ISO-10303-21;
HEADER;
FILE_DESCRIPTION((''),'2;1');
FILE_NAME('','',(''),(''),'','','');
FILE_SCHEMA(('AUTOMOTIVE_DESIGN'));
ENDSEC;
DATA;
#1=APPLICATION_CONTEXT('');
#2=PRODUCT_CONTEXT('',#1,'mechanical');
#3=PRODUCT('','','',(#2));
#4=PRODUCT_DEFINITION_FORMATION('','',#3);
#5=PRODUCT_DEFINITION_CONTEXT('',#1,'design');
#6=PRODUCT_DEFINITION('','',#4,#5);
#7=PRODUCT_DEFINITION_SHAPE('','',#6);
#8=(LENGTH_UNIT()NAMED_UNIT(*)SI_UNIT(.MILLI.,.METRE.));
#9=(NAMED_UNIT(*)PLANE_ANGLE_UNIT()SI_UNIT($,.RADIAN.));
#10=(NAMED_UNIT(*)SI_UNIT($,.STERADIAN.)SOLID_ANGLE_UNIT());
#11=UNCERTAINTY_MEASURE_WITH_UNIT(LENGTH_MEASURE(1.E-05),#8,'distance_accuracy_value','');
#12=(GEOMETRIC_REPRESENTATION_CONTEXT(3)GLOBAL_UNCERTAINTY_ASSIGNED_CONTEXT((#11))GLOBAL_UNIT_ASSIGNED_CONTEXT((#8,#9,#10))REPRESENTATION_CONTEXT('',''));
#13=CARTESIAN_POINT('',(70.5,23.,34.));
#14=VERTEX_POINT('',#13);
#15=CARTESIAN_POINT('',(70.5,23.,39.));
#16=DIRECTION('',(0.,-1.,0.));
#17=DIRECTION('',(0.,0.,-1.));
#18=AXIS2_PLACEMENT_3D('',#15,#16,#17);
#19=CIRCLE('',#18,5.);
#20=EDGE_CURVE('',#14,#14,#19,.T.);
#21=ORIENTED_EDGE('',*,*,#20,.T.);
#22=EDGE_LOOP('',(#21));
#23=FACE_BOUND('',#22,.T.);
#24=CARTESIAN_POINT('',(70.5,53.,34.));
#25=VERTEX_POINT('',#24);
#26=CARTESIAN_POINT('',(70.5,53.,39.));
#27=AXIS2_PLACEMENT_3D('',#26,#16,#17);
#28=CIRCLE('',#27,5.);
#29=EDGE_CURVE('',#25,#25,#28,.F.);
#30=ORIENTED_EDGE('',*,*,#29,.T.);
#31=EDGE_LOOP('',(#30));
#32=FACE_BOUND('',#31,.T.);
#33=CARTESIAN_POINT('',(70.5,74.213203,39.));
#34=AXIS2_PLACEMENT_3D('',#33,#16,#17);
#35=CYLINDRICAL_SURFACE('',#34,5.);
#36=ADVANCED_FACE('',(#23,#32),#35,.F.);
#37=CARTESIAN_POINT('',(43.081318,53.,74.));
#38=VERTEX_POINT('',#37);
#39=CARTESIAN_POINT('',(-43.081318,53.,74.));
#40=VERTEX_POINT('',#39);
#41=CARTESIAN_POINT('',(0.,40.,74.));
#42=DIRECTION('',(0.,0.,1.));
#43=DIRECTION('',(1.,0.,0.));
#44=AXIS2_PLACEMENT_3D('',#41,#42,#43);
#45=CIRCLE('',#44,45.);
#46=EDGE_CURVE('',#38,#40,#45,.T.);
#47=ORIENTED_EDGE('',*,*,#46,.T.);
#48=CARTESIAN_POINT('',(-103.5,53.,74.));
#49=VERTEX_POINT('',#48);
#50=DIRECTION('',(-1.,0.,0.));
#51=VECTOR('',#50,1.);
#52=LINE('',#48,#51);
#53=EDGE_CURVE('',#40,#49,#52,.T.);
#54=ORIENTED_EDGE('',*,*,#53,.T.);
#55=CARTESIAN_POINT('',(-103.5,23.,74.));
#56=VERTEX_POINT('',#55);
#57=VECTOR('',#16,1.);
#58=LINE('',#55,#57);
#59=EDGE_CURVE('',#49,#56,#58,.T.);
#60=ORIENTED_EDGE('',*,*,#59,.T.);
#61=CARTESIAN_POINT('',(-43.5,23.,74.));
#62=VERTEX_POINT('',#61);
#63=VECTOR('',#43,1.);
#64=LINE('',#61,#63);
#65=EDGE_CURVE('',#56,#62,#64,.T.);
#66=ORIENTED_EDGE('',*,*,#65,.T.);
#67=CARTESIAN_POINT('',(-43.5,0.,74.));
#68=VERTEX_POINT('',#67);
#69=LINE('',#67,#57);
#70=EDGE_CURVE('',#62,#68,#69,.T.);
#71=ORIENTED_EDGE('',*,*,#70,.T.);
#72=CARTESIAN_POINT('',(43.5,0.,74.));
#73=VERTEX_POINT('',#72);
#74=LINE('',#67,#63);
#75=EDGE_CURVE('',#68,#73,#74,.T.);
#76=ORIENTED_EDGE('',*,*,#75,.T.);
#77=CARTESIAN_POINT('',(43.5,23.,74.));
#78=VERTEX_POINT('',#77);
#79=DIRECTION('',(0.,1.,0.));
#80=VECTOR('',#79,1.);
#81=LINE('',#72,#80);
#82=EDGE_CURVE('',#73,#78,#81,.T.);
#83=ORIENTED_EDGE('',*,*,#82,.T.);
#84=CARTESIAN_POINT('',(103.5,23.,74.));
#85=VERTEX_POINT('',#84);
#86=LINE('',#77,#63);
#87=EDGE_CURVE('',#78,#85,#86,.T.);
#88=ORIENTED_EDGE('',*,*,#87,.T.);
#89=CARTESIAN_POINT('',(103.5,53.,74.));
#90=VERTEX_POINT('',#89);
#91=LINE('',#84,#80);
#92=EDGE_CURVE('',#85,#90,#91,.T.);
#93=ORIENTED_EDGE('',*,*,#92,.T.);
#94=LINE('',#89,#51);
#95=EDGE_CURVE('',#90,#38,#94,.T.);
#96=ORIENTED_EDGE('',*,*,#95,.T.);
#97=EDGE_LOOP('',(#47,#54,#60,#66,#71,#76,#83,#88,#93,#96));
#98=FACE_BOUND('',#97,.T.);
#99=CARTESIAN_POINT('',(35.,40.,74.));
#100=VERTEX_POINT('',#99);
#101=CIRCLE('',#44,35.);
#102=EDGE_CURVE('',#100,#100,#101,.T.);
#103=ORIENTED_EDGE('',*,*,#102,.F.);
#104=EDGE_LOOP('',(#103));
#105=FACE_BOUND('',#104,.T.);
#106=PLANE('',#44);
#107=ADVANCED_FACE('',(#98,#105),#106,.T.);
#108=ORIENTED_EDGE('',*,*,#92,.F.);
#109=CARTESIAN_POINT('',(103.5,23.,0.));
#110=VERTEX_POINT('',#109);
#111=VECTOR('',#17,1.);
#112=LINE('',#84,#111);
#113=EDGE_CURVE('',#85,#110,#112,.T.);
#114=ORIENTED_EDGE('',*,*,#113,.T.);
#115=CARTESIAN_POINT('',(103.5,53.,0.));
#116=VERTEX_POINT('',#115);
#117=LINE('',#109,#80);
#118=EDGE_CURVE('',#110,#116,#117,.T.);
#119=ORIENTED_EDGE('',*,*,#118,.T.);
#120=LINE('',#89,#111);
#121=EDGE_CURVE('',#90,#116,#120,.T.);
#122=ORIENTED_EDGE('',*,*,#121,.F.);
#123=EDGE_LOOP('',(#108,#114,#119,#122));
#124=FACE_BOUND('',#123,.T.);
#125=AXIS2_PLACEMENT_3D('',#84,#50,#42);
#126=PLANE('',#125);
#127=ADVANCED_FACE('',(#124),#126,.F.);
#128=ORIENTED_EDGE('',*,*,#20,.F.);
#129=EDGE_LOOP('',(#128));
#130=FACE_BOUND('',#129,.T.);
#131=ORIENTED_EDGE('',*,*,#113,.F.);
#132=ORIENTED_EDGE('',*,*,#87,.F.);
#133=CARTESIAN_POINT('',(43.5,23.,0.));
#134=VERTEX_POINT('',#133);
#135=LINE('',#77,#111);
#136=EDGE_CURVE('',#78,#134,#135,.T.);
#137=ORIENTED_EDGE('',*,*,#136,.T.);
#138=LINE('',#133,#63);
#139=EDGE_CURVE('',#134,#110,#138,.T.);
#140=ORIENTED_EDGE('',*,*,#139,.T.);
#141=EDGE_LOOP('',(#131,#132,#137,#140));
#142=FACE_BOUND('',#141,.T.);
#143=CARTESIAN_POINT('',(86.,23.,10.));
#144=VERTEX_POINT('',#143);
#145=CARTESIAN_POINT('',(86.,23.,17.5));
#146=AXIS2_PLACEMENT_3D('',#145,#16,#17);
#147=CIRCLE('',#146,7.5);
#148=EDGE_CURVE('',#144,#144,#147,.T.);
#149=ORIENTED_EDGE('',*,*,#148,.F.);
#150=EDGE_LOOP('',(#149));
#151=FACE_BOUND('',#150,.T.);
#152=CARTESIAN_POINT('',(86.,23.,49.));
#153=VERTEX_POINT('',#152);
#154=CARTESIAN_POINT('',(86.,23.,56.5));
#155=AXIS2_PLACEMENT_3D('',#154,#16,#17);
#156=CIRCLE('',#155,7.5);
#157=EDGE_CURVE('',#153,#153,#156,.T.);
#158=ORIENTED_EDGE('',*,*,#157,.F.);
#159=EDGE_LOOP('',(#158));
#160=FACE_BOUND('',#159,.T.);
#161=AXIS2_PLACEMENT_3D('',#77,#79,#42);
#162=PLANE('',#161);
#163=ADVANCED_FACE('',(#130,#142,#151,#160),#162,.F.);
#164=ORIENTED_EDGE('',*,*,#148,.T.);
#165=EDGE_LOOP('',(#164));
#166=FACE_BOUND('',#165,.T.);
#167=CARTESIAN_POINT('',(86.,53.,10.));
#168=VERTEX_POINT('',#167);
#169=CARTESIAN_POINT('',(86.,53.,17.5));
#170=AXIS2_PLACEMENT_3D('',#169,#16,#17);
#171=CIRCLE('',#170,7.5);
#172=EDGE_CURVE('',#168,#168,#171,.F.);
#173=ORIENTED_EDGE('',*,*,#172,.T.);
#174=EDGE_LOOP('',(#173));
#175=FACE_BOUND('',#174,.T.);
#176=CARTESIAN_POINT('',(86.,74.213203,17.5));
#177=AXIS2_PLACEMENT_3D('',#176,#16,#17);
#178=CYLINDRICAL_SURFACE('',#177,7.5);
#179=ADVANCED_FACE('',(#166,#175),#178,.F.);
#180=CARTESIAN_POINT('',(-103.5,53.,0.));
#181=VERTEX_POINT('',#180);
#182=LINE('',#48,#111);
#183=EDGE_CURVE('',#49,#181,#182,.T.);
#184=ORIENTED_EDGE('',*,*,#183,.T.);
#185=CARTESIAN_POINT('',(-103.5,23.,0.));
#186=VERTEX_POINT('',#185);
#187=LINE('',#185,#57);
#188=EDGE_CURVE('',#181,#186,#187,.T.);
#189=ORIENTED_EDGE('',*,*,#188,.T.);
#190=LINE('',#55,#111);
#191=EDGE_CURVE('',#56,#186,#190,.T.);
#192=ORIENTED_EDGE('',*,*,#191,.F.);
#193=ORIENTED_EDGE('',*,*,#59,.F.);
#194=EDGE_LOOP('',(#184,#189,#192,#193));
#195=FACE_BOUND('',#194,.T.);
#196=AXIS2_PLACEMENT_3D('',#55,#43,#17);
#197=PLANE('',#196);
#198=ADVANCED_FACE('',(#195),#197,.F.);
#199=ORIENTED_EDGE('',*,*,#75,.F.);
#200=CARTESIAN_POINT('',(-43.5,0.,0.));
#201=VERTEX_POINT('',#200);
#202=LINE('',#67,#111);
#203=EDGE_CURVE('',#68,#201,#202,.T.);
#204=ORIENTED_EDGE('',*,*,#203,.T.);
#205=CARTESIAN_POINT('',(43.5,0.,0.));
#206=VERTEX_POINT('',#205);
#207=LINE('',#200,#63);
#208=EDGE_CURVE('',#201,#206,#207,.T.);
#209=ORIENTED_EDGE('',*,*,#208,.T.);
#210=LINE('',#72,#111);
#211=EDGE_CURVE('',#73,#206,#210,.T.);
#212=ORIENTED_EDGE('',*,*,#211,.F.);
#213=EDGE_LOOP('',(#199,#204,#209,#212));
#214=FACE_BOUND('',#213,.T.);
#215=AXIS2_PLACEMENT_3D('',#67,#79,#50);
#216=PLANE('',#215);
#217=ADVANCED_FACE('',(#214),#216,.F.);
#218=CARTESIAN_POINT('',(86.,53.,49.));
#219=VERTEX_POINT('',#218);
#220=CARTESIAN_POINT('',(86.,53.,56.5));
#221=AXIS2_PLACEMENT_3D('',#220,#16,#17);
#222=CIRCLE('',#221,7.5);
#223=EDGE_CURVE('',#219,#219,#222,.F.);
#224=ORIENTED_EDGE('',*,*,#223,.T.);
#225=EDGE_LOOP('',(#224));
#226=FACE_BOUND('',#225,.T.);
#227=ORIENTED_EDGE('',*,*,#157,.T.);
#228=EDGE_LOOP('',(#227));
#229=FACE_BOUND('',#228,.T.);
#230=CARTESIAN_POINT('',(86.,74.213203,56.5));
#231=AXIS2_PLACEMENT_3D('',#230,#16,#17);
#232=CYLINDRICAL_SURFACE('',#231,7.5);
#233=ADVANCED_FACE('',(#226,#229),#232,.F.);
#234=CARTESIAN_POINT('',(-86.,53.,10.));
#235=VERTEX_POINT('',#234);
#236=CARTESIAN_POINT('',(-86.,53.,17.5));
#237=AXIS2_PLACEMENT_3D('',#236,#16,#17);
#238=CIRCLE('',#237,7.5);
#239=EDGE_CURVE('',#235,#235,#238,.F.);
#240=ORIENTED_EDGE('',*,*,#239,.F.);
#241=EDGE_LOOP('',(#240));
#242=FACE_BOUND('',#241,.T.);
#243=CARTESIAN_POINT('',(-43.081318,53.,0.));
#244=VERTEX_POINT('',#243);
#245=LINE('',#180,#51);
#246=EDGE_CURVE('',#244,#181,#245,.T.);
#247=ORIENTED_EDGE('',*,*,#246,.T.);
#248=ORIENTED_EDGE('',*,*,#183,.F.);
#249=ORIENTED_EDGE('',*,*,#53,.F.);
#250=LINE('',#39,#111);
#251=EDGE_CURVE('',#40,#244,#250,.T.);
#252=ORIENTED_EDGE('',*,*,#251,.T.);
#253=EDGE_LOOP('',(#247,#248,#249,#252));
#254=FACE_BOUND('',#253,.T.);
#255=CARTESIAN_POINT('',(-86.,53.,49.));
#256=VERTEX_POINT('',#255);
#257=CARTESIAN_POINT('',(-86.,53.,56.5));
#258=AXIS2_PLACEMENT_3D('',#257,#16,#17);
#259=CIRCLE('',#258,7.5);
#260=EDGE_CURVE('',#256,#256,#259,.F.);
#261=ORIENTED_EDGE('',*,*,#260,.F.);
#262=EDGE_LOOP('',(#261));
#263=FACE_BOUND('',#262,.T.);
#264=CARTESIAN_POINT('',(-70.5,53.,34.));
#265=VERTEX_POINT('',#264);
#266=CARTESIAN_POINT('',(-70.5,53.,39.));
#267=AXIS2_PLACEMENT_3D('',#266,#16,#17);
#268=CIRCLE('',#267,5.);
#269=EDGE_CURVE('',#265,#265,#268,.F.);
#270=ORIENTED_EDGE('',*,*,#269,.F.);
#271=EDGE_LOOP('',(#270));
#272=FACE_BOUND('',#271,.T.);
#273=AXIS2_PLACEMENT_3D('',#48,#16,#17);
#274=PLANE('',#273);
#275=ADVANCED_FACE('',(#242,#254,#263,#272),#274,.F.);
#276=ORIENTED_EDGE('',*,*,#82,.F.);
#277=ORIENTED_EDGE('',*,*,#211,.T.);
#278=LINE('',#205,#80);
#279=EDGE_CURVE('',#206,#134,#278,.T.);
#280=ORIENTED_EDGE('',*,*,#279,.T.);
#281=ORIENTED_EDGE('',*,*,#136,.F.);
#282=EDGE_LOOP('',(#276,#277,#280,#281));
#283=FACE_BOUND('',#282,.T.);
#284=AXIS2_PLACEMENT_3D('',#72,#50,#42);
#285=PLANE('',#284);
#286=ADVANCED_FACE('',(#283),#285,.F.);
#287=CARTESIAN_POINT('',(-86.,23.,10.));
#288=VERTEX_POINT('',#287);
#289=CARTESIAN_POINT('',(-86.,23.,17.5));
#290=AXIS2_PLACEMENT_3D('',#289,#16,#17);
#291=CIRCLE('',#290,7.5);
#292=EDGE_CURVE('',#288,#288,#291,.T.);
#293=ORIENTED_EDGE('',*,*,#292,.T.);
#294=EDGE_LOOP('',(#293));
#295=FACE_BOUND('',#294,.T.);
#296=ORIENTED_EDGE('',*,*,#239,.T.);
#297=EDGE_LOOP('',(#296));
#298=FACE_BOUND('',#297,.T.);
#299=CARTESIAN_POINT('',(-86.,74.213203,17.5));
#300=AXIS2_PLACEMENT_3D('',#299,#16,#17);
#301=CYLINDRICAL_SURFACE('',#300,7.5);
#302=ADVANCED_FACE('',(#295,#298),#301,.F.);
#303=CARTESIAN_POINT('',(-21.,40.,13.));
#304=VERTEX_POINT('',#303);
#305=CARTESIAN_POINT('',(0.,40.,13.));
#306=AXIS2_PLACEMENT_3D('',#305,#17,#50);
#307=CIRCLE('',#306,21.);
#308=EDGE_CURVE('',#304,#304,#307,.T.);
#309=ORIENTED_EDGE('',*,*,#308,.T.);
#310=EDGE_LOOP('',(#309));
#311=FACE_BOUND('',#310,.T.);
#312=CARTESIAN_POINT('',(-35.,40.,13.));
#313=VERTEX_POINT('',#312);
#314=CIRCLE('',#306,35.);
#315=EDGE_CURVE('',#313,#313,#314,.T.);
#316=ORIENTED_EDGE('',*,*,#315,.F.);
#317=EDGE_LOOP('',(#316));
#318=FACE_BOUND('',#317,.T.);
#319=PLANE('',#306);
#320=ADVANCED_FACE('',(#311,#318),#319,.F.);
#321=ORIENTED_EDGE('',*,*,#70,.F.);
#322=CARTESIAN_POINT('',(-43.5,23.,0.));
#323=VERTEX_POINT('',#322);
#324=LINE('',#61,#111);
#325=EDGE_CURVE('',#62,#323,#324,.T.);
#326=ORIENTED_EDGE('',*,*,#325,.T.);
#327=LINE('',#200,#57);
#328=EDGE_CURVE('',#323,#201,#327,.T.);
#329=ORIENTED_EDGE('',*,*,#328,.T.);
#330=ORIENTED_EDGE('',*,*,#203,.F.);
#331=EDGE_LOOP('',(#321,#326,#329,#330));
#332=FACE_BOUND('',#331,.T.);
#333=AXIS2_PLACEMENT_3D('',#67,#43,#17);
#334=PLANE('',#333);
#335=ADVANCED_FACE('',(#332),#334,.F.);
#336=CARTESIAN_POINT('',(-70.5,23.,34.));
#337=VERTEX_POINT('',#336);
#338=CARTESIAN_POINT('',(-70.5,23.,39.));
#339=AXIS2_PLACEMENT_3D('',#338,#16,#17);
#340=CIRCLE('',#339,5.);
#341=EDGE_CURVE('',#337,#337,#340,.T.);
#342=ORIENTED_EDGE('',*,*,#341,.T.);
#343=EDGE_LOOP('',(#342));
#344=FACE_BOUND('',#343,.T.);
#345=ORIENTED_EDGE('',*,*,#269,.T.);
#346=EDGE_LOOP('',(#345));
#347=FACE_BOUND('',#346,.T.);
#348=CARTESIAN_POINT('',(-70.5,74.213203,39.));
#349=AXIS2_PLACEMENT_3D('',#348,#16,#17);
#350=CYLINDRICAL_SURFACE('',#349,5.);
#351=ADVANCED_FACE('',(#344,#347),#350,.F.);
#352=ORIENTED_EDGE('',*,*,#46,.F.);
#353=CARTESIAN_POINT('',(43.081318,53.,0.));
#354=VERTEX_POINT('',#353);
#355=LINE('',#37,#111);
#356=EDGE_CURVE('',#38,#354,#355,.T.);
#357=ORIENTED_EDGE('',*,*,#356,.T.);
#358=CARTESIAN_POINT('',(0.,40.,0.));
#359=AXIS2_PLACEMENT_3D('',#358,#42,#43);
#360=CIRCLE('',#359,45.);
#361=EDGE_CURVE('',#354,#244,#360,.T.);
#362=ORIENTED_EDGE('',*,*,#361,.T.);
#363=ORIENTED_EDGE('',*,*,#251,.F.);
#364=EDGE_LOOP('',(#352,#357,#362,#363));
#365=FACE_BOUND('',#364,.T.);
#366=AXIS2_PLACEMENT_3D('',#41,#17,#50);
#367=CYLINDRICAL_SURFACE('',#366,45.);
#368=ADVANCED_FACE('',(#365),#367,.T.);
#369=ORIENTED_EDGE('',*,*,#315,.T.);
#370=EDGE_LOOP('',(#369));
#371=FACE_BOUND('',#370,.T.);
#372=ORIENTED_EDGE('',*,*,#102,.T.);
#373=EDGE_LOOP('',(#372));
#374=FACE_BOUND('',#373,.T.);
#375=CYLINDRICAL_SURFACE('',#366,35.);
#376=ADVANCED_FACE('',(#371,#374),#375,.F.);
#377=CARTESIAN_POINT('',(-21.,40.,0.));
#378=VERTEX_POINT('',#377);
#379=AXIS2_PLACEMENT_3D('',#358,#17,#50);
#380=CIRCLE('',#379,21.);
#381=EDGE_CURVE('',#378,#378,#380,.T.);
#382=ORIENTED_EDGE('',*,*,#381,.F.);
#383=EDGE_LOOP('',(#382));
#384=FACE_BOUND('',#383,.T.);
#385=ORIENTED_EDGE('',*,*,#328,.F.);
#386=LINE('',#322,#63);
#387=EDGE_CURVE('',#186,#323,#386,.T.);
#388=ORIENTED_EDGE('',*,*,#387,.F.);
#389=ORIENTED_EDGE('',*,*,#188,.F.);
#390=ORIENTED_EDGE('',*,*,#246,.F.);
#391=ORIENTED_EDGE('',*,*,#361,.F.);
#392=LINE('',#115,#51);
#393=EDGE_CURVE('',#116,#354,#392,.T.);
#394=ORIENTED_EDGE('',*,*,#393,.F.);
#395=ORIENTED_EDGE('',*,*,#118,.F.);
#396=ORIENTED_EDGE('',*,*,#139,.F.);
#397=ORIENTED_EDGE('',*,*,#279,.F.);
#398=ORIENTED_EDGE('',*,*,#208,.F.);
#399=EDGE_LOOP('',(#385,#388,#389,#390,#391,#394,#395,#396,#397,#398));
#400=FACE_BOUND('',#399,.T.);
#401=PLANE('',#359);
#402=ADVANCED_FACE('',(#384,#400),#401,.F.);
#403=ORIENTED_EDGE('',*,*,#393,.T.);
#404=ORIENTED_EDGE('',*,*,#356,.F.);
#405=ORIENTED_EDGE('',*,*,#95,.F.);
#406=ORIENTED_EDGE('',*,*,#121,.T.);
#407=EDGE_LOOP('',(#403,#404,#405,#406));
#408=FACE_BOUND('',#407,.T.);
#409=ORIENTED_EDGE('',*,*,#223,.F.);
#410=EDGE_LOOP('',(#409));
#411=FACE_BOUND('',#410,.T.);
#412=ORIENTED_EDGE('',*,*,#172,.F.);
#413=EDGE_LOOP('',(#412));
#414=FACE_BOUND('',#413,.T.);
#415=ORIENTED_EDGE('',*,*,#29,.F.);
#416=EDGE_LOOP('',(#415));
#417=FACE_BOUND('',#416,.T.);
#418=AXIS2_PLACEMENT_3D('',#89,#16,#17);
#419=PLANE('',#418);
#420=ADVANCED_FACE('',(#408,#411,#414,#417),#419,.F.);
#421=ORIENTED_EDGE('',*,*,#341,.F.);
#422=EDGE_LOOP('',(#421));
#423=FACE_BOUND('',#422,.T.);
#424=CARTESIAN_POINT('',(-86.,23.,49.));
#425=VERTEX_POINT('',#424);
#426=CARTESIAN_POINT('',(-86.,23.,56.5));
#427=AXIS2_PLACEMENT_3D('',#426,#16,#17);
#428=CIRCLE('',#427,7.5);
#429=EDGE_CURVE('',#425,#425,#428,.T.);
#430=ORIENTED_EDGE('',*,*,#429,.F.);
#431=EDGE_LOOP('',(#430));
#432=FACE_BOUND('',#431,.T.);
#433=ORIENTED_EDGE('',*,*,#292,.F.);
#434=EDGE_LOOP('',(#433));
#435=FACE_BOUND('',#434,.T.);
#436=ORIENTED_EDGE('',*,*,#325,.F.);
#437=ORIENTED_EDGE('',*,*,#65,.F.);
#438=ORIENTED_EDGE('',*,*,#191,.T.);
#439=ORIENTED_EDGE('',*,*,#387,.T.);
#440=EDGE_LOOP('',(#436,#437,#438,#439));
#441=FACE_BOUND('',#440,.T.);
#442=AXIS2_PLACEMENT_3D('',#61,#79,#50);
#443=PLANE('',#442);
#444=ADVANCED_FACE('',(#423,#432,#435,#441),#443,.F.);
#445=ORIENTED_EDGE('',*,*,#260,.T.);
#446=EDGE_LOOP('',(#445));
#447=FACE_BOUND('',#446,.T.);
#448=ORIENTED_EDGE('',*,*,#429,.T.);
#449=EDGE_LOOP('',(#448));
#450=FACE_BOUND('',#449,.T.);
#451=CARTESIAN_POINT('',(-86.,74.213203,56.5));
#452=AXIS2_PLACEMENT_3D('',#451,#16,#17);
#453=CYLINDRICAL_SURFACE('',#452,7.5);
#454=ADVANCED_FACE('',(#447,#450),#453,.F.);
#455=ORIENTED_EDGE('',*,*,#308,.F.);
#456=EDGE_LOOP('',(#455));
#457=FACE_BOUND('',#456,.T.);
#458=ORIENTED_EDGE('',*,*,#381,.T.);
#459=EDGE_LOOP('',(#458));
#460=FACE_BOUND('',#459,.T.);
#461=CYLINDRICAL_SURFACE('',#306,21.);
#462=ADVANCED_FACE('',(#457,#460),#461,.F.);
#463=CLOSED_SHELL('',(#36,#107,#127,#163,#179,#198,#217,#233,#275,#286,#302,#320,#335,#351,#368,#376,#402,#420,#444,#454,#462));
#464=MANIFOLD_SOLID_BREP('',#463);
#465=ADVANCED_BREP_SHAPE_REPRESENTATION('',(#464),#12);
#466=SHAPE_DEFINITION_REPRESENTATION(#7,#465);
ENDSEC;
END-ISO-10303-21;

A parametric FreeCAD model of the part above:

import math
import FreeCAD as App
import Part
import Sketcher
from FreeCAD import Vector

doc = App.newDocument("Part")
body = doc.addObject("PartDesign::Body", "Body")

sketch1 = body.newObject("Sketcher::SketchObject", "Sketch")
sketch1.AttachmentSupport = (doc.getObject("XY_Plane"), [""])
sketch1.MapMode = "FlatFace"
sketch1.addGeometry([
    Part.LineSegment(Vector(-43.5, 0, 0), Vector(43.5, 0, 0)),
    Part.LineSegment(Vector(43.5, 0, 0), Vector(43.5, 23, 0)),
    Part.LineSegment(Vector(43.5, 23, 0), Vector(103.5, 23, 0)),
    Part.LineSegment(Vector(103.5, 23, 0), Vector(103.5, 53, 0)),
    Part.LineSegment(Vector(103.5, 53, 0), Vector(43.081318, 53, 0)),
    Part.ArcOfCircle(Part.Circle(Vector(0, 40, 0), Vector(0, 0, 1), 45), math.radians(16.791447), math.radians(163.208553)),
    Part.LineSegment(Vector(-43.081318, 53, 0), Vector(-103.5, 53, 0)),
    Part.LineSegment(Vector(-103.5, 53, 0), Vector(-103.5, 23, 0)),
    Part.LineSegment(Vector(-103.5, 23, 0), Vector(-43.5, 23, 0)),
    Part.LineSegment(Vector(-43.5, 23, 0), Vector(-43.5, 0, 0)),
    Part.Circle(Vector(0, 40, 0), Vector(0, 0, 1), 35),
], False)
sketch1.addConstraint([
    Sketcher.Constraint("Coincident", 0, 2, 1, 1),
    Sketcher.Constraint("Coincident", 1, 2, 2, 1),
    Sketcher.Constraint("Coincident", 2, 2, 3, 1),
    Sketcher.Constraint("Coincident", 3, 2, 4, 1),
    Sketcher.Constraint("Coincident", 4, 2, 5, 1),
    Sketcher.Constraint("Coincident", 5, 2, 6, 1),
    Sketcher.Constraint("Coincident", 6, 2, 7, 1),
    Sketcher.Constraint("Coincident", 7, 2, 8, 1),
    Sketcher.Constraint("Coincident", 8, 2, 9, 1),
    Sketcher.Constraint("Coincident", 9, 2, 0, 1),
    Sketcher.Constraint("Horizontal", 0),
    Sketcher.Constraint("Vertical", 1),
    Sketcher.Constraint("Horizontal", 2),
    Sketcher.Constraint("Vertical", 3),
    Sketcher.Constraint("Horizontal", 4),
    Sketcher.Constraint("Horizontal", 6),
    Sketcher.Constraint("Vertical", 7),
    Sketcher.Constraint("Horizontal", 8),
    Sketcher.Constraint("Vertical", 9),
    Sketcher.Constraint("Coincident", 10, 3, 5, 3),
    Sketcher.Constraint("Symmetric", 0, 2, 9, 2, -1, 1),
    Sketcher.Constraint("Symmetric", 4, 2, 5, 2, -2),
    Sketcher.Constraint("Symmetric", 2, 2, 7, 2, -2),
    Sketcher.Constraint("Diameter", 10, 70.0),
    Sketcher.Constraint("Radius", 5, 45.0),
    Sketcher.Constraint("DistanceX", 0, 1, 0, 2, 87.0),
    Sketcher.Constraint("DistanceX", 2, 1, 2, 2, 60.0),
    Sketcher.Constraint("DistanceY", 1, 1, 1, 2, 23.0),
    Sketcher.Constraint("DistanceY", 3, 1, 3, 2, 30.0),
    Sketcher.Constraint("DistanceY", -1, 1, 5, 3, 40.0),
])
pad1 = body.newObject("PartDesign::Pad", "Pad")
pad1.Profile = sketch1
pad1.Length = 74

sketch2 = body.newObject("Sketcher::SketchObject", "Sketch001")
sketch2.AttachmentSupport = (doc.getObject("XY_Plane"), [""])
sketch2.MapMode = "FlatFace"
sketch2.addGeometry([
    Part.Circle(Vector(0, 40, 0), Vector(0, 0, 1), 35),
    Part.Circle(Vector(0, 40, 0), Vector(0, 0, 1), 21),
], False)
sketch2.addConstraint([
    Sketcher.Constraint("Coincident", 1, 3, 0, 3),
    Sketcher.Constraint("PointOnObject", 0, 3, -2),
    Sketcher.Constraint("Diameter", 0, 70.0),
    Sketcher.Constraint("Diameter", 1, 42.0),
    Sketcher.Constraint("DistanceY", -1, 1, 0, 3, 40.0),
])
pad2 = body.newObject("PartDesign::Pad", "Pad001")
pad2.Profile = sketch2
pad2.Length = 13

sketch3 = body.newObject("Sketcher::SketchObject", "Sketch002")
sketch3.AttachmentSupport = (doc.getObject("XZ_Plane"), [""])
sketch3.MapMode = "FlatFace"
sketch3.AttachmentOffset = App.Placement(Vector(0, 0, -23), App.Rotation())
sketch3.addGeometry([
    Part.Circle(Vector(-86, 56.5, 0), Vector(0, 0, 1), 7.5),
    Part.Circle(Vector(-70.5, 39, 0), Vector(0, 0, 1), 5),
    Part.Circle(Vector(-86, 17.5, 0), Vector(0, 0, 1), 7.5),
    Part.Circle(Vector(86, 56.5, 0), Vector(0, 0, 1), 7.5),
    Part.Circle(Vector(70.5, 39, 0), Vector(0, 0, 1), 5),
    Part.Circle(Vector(86, 17.5, 0), Vector(0, 0, 1), 7.5),
], False)
sketch3.addConstraint([
    Sketcher.Constraint("Equal", 0, 2),
    Sketcher.Constraint("Equal", 2, 3),
    Sketcher.Constraint("Equal", 1, 4),
    Sketcher.Constraint("Equal", 3, 5),
    Sketcher.Constraint("Symmetric", 0, 3, 3, 3, -2),
    Sketcher.Constraint("Symmetric", 1, 3, 4, 3, -2),
    Sketcher.Constraint("Symmetric", 2, 3, 5, 3, -2),
    Sketcher.Constraint("Vertical", 0, 3, 2, 3),
    Sketcher.Constraint("Diameter", 0, 15.0),
    Sketcher.Constraint("Diameter", 1, 10.0),
    Sketcher.Constraint("DistanceX", 0, 3, -1, 1, 86.0),
    Sketcher.Constraint("DistanceY", -1, 1, 1, 3, 39.0),
    Sketcher.Constraint("DistanceY", 2, 3, 0, 3, 39.0),
    Sketcher.Constraint("DistanceX", 1, 3, 4, 3, 141.0),
    Sketcher.Constraint("DistanceY", -1, 1, 0, 3, 56.5),
])
pocket1 = body.newObject("PartDesign::Pocket", "Pocket")
pocket1.Profile = sketch3
pocket1.Length = 30

doc.recompute()
